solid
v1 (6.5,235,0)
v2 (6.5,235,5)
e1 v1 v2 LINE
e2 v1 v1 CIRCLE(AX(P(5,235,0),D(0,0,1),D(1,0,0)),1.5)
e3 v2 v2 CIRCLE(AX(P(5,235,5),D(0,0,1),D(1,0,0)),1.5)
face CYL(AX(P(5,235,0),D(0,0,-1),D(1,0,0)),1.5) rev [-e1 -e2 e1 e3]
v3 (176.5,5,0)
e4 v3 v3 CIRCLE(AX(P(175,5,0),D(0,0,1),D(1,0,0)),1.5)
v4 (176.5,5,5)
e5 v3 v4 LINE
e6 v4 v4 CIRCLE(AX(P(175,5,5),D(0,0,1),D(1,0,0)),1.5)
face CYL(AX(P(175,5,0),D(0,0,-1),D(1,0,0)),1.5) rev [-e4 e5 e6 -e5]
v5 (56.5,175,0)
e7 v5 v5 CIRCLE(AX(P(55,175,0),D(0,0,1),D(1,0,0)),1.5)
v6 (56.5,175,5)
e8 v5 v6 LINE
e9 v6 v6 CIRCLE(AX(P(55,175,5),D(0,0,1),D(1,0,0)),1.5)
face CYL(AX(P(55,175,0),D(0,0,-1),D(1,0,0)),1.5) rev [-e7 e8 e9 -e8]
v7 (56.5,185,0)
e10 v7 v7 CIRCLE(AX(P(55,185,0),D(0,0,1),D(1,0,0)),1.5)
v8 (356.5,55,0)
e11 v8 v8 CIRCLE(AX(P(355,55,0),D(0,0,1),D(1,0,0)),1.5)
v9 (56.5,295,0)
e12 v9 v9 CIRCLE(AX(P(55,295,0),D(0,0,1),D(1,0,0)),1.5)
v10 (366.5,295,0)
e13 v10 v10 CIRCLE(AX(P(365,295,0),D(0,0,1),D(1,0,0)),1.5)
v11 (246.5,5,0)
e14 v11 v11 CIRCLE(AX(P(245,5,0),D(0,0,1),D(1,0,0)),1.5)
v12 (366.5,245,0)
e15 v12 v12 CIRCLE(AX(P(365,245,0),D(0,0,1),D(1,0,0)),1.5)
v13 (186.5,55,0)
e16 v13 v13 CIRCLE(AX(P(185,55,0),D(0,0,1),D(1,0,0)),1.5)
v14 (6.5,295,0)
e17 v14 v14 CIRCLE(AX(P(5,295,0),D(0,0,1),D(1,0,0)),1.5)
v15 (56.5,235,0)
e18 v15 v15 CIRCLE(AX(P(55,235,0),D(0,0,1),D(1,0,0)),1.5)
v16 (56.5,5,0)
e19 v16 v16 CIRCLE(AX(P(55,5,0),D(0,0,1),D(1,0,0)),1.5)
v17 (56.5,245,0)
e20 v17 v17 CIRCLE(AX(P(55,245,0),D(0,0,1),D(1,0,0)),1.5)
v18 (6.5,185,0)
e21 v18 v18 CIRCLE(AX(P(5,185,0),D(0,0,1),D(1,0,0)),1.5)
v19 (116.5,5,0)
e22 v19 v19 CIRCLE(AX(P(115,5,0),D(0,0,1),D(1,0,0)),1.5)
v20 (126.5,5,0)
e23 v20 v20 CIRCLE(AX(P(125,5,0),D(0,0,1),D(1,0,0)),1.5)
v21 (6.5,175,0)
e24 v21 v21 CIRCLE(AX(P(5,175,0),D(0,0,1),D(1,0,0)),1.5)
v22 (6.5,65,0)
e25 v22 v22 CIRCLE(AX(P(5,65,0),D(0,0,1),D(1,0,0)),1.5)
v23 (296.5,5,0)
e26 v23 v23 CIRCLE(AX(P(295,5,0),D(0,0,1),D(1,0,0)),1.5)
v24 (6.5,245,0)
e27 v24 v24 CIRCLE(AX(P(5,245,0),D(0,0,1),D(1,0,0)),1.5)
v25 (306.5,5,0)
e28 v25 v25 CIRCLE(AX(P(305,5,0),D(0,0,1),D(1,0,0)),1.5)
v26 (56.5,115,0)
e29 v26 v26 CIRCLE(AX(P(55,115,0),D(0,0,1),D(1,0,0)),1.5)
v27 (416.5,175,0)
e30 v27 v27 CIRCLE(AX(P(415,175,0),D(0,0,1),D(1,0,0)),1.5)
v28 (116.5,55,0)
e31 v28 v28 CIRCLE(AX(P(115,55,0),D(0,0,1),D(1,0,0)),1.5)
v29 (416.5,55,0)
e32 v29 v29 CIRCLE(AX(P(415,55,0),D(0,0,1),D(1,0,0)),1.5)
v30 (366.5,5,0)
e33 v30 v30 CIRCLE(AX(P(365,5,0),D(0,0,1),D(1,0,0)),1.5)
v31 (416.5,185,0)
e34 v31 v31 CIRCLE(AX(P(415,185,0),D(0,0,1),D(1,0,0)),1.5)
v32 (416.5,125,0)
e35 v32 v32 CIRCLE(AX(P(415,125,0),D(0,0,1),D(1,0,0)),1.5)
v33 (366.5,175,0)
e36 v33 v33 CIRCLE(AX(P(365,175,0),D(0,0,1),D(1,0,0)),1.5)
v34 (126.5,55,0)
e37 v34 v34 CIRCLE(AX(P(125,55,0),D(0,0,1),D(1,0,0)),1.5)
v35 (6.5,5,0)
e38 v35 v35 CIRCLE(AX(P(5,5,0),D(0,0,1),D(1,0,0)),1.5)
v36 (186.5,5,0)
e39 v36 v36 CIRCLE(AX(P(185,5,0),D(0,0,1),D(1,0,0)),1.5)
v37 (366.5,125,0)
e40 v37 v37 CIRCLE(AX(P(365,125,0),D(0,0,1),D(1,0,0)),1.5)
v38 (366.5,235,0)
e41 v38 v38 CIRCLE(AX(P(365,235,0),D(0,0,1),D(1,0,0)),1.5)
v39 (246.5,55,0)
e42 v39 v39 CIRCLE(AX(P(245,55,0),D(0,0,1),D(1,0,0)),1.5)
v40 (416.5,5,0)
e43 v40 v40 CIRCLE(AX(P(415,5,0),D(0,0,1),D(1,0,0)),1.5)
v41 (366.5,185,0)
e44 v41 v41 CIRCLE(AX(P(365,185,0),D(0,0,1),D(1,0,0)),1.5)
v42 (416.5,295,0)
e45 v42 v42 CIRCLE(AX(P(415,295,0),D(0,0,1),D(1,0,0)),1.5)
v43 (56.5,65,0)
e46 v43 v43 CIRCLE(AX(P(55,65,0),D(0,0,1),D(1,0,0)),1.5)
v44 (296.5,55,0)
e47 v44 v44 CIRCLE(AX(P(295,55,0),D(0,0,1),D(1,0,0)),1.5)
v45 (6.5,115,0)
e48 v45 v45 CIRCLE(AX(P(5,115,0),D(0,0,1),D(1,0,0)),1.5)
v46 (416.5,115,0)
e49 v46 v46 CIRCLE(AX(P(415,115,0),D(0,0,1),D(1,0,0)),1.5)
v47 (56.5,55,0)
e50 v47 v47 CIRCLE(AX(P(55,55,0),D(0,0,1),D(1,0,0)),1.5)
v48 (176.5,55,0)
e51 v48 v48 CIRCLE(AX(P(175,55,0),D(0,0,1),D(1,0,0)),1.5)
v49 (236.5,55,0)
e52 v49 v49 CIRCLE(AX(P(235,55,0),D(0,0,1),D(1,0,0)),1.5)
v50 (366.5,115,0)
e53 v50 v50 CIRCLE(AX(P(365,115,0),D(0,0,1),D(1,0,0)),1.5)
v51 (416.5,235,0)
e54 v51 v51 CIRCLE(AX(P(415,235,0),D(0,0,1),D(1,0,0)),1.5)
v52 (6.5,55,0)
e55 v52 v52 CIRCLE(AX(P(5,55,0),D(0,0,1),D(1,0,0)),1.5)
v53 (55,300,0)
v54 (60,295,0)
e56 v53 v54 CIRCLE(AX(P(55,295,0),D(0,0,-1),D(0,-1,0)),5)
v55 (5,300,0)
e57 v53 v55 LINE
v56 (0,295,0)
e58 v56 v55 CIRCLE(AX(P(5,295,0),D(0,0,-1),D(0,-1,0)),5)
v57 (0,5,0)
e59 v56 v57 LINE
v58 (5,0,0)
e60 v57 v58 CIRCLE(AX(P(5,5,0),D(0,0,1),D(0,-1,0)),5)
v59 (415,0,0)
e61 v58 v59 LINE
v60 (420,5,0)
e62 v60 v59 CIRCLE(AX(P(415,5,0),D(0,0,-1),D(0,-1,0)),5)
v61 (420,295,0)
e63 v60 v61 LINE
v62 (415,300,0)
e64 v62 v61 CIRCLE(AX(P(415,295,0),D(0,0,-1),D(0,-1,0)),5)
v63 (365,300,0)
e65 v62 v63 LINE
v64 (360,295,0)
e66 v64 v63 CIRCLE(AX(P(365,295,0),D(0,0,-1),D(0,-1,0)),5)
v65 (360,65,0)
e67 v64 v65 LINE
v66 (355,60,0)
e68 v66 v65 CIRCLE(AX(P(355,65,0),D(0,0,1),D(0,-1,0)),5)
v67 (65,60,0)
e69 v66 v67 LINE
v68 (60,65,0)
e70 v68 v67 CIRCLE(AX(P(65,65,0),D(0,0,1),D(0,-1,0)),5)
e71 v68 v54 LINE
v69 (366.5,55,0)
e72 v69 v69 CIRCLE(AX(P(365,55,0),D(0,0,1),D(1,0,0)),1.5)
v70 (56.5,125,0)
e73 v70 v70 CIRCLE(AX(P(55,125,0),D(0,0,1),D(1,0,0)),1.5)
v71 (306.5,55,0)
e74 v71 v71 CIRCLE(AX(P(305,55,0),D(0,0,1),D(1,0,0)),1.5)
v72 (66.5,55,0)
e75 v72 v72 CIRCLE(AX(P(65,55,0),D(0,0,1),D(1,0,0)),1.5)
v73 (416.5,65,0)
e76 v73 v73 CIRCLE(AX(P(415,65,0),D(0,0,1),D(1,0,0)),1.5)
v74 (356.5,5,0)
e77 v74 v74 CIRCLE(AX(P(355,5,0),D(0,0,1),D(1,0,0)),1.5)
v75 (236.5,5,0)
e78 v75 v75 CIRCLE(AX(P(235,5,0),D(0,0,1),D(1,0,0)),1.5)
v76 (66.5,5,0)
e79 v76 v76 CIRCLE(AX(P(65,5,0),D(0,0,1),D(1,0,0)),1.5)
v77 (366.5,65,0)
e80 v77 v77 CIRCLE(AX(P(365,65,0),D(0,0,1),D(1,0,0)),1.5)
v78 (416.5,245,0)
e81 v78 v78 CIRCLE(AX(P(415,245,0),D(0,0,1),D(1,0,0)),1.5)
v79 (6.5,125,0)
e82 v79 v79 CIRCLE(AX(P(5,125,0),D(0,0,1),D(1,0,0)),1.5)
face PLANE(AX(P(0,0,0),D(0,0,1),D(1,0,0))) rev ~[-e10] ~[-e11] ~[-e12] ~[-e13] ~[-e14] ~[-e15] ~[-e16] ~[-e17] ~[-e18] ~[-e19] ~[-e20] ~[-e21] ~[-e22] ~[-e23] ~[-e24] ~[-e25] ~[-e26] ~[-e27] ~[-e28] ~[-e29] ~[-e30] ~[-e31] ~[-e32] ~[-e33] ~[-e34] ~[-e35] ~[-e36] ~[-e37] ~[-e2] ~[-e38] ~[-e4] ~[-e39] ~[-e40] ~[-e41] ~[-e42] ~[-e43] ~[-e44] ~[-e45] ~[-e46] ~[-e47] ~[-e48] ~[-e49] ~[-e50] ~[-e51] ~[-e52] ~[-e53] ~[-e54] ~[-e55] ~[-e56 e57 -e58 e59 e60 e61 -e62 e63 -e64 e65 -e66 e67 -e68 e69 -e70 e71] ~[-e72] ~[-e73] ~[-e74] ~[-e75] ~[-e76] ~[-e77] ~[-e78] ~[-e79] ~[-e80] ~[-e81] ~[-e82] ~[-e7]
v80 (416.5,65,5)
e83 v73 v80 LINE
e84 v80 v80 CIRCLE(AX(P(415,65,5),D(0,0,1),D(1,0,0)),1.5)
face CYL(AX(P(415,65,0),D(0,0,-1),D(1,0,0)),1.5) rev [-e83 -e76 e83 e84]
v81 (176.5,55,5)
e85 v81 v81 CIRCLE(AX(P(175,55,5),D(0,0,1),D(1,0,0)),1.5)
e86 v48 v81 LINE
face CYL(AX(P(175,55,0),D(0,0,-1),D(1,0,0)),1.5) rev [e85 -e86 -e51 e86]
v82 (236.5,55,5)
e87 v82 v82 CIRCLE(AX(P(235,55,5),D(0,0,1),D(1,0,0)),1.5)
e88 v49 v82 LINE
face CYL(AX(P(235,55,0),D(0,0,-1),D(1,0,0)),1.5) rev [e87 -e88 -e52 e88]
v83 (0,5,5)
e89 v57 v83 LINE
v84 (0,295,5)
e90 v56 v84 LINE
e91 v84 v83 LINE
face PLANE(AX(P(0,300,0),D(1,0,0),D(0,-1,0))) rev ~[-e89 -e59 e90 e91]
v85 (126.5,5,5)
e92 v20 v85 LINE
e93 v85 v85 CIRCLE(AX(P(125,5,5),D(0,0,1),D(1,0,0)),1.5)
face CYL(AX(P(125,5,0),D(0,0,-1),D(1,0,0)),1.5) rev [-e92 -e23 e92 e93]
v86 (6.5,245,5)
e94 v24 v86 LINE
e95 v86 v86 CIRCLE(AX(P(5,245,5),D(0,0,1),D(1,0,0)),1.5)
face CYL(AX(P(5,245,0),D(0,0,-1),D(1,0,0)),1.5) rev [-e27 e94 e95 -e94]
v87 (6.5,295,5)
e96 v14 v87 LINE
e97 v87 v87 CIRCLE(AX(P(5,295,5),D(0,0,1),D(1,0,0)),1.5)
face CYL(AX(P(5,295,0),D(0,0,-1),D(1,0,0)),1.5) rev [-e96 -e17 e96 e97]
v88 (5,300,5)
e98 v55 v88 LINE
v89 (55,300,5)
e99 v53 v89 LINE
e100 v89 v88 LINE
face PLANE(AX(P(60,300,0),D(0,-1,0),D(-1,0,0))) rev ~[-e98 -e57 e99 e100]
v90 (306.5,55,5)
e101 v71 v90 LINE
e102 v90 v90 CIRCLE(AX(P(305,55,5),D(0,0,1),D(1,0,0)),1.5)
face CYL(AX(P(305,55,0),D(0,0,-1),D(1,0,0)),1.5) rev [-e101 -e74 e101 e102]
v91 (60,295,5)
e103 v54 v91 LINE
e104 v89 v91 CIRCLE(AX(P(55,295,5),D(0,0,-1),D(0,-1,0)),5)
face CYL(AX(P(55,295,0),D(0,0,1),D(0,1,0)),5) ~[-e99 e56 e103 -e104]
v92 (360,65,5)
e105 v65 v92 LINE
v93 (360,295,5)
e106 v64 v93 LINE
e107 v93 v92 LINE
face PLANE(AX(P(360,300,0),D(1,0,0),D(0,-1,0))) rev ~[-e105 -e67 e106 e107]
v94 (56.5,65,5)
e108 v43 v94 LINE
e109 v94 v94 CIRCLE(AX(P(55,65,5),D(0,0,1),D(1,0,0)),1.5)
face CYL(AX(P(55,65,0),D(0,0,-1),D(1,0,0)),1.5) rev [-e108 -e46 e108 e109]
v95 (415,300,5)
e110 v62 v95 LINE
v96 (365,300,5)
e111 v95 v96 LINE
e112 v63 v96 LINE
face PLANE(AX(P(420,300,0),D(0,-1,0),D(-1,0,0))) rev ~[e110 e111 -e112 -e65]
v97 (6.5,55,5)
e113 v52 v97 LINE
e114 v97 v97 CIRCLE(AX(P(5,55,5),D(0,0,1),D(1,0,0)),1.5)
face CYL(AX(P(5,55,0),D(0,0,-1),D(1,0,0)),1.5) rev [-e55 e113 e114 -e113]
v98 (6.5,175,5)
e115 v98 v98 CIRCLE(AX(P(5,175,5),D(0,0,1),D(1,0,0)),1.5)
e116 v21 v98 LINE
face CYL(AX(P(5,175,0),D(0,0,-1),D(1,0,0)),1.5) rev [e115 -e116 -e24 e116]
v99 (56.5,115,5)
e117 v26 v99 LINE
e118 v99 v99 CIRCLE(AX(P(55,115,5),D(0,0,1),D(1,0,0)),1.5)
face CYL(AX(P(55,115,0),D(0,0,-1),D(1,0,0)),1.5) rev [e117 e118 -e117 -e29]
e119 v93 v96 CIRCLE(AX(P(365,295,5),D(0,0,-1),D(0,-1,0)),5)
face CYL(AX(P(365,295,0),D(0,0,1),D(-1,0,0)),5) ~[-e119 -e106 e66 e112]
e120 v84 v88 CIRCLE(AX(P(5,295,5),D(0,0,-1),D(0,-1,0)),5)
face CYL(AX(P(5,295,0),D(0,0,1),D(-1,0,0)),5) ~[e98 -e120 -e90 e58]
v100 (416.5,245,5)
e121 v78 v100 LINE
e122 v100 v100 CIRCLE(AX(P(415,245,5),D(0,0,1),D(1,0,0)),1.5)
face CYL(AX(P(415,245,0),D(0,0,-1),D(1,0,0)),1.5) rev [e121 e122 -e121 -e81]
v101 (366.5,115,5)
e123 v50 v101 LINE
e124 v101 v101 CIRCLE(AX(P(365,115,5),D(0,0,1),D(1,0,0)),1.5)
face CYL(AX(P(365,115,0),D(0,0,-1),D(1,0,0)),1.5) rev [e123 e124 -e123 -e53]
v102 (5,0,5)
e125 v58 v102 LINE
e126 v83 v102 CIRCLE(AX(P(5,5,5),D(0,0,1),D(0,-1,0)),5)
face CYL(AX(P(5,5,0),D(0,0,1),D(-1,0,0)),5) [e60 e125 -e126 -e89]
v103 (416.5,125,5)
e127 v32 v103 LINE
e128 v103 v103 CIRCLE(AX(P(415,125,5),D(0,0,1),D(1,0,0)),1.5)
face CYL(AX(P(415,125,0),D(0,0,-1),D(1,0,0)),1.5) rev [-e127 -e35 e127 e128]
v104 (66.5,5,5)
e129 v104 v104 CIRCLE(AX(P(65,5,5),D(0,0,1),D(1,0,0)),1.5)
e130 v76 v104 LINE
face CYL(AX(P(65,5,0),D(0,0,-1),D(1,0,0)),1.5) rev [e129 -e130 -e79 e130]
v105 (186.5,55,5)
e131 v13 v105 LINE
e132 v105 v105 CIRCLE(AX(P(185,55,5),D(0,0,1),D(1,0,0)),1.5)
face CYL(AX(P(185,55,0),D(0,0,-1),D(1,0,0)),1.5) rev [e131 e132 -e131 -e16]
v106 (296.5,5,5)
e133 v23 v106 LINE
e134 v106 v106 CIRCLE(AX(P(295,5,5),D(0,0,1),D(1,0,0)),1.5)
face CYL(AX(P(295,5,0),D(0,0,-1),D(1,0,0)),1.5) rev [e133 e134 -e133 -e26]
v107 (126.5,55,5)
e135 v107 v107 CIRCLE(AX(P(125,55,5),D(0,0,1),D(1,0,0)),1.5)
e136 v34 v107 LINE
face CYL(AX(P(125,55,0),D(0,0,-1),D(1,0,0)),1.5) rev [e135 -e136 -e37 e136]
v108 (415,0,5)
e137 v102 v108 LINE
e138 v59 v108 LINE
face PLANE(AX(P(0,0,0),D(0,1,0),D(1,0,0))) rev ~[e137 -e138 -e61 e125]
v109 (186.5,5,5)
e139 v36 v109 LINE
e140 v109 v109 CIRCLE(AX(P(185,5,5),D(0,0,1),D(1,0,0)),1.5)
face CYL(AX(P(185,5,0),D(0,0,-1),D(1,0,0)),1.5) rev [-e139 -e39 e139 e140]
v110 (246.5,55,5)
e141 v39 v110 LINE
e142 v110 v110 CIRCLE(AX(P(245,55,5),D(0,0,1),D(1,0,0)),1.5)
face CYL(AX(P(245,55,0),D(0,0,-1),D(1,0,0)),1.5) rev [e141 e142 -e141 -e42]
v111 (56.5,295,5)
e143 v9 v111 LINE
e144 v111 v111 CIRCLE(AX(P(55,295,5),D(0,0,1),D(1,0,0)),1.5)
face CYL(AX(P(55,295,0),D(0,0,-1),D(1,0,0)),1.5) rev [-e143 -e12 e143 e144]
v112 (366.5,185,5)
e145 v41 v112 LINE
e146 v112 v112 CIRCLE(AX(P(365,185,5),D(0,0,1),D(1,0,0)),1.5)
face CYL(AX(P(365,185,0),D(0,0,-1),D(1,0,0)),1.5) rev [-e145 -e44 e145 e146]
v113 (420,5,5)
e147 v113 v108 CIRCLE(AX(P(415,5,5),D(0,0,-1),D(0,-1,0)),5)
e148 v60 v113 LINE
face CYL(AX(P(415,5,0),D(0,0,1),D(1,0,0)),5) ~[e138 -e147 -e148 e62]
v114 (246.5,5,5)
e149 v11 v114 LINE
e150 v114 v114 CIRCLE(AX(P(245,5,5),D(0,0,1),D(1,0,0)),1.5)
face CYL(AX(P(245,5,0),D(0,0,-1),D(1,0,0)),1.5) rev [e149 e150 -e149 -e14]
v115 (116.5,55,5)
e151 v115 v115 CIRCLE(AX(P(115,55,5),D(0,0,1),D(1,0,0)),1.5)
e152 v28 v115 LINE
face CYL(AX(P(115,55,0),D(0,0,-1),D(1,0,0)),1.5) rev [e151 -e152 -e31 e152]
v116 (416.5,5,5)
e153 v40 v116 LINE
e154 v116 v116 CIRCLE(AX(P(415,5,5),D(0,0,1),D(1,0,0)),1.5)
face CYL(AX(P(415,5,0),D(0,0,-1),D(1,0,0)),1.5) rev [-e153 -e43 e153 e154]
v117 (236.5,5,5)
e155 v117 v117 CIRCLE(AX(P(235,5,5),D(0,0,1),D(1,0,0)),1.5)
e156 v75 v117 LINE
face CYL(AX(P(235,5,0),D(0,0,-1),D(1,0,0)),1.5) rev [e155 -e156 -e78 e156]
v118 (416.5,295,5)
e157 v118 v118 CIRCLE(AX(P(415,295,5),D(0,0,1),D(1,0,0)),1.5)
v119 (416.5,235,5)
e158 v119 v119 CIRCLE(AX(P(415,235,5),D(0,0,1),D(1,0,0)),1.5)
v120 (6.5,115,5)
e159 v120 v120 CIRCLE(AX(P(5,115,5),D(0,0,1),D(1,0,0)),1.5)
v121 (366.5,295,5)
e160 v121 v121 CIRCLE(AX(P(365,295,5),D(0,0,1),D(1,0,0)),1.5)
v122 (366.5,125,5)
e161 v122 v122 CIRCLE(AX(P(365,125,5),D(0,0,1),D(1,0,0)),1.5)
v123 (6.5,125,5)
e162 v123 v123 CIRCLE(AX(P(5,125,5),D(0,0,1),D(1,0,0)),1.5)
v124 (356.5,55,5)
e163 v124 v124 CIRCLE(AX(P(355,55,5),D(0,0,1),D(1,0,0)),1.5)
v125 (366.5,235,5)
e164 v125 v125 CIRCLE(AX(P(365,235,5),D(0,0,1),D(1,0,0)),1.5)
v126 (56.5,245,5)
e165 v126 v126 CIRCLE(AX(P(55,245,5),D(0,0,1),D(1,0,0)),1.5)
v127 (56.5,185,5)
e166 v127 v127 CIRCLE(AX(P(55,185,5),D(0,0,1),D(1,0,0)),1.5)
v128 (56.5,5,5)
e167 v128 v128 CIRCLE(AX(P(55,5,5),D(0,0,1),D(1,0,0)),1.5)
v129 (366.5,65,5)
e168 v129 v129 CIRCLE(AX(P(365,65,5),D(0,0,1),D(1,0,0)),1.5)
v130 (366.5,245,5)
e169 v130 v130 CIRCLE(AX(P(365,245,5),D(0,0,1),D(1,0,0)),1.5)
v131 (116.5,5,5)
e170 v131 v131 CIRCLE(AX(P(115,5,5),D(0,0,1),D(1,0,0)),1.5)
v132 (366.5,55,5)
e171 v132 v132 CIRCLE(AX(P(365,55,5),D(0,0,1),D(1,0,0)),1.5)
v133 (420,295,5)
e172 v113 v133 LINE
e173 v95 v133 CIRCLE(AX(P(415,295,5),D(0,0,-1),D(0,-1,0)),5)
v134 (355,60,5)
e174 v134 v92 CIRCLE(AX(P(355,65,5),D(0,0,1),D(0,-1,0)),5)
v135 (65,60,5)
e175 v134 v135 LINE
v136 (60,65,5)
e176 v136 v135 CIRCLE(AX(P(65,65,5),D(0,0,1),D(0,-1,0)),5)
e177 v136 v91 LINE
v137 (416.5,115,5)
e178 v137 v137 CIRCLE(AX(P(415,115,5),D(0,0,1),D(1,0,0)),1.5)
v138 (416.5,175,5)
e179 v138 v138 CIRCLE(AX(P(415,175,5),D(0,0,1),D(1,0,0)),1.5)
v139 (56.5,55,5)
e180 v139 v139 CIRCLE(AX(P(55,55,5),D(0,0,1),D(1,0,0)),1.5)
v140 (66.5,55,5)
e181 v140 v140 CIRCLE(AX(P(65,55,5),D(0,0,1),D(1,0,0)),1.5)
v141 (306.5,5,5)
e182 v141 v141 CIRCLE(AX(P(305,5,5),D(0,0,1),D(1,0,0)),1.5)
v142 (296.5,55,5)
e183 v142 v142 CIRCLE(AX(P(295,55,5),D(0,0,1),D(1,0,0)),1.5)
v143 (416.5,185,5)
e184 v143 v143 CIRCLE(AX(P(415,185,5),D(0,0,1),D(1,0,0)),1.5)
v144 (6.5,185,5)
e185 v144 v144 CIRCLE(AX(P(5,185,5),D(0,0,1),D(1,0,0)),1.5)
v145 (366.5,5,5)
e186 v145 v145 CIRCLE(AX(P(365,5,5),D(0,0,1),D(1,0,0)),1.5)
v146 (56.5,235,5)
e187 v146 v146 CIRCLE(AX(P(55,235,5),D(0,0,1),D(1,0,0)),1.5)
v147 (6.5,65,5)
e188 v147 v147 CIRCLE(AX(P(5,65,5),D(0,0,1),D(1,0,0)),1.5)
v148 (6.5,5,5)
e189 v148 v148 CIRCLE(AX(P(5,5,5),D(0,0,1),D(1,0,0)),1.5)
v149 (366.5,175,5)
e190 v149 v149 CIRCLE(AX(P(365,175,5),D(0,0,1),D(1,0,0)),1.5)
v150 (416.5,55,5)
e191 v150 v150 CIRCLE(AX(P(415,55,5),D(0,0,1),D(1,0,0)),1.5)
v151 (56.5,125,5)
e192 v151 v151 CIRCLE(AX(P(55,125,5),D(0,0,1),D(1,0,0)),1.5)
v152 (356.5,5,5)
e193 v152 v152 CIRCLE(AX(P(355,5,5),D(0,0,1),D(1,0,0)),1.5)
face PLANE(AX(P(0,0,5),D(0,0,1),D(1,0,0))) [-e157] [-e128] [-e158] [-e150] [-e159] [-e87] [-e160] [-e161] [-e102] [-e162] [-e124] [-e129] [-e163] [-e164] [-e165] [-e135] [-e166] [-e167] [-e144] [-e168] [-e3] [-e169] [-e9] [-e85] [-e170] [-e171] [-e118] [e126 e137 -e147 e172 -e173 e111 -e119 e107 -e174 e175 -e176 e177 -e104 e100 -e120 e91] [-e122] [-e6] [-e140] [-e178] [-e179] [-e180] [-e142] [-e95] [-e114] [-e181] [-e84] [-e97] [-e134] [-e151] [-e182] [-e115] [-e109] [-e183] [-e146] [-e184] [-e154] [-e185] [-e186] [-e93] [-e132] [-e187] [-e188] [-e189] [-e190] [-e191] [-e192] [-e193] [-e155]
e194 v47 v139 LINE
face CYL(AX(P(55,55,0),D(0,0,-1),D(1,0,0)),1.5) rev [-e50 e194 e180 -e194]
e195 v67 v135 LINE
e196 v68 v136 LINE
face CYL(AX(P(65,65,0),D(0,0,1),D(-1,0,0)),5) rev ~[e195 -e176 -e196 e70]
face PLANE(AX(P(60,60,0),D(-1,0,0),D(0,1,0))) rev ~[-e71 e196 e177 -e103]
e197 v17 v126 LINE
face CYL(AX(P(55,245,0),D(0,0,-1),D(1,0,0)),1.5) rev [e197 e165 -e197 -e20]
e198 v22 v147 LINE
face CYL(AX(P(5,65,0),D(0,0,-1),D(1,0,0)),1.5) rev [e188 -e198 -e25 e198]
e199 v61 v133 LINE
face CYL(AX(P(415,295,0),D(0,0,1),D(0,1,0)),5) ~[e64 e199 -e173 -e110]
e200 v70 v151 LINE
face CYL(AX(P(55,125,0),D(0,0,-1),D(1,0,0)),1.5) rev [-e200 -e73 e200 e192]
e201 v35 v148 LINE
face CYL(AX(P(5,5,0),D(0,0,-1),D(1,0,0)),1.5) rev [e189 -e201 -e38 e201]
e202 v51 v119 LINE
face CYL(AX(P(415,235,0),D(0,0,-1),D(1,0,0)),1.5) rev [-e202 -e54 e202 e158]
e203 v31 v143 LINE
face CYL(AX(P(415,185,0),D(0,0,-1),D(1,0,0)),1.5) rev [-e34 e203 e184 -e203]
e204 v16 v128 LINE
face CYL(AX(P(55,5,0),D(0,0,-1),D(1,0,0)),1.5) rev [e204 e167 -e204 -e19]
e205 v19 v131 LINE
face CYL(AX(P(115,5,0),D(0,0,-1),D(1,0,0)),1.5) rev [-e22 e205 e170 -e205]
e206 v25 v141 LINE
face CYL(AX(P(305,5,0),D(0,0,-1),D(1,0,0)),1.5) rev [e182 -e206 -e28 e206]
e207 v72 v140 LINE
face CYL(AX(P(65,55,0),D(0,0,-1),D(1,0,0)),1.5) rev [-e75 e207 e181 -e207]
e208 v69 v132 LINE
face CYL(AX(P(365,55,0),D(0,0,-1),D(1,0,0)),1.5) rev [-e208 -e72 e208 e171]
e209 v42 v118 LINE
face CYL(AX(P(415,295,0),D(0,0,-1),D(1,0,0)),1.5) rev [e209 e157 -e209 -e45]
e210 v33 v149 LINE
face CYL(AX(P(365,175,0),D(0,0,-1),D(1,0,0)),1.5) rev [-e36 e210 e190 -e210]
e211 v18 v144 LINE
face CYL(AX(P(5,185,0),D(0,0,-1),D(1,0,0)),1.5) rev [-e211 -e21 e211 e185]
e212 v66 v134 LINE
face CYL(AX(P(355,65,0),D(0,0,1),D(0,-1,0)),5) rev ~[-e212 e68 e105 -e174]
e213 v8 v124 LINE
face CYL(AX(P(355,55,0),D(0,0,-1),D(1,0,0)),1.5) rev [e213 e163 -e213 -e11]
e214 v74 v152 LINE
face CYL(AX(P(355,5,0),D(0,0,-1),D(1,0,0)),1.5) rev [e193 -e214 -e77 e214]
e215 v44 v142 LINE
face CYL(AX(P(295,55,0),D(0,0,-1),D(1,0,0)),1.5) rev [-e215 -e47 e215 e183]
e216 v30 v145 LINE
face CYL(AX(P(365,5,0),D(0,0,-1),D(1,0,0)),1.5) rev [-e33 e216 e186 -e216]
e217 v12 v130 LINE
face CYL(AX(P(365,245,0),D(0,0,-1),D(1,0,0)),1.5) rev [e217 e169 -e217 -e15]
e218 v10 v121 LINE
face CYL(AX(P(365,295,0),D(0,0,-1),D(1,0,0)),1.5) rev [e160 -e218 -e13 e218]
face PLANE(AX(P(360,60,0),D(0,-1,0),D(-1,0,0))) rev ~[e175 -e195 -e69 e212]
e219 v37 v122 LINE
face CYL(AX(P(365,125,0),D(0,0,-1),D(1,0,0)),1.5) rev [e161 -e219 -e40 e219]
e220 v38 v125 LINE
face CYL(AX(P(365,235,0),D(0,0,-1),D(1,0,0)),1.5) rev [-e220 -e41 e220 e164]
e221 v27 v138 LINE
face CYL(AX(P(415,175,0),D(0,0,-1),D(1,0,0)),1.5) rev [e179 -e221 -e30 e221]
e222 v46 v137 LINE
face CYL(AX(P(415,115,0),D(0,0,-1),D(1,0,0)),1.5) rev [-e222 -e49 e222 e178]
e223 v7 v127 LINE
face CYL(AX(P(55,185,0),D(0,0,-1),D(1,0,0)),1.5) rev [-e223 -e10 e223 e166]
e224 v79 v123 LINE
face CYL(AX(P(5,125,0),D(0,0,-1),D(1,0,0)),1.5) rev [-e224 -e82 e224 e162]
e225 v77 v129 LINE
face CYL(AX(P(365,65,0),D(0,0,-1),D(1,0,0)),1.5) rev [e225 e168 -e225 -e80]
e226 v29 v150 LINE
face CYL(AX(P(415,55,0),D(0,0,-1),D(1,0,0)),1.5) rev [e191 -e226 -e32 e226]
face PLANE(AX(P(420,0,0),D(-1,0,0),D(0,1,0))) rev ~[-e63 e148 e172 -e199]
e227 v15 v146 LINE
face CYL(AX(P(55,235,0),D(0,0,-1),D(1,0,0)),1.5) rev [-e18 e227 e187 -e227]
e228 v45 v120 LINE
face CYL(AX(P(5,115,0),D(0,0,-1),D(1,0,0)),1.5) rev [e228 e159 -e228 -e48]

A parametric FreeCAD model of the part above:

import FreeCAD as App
import Part
import Sketcher
from FreeCAD import Vector


def edges_at(feature, points):
    """Names of the edges that pass closest to the given points."""
    edges = feature.Shape.Edges
    near = lambda p: min(range(len(edges)), key=lambda i: edges[i].distToShape(Part.Vertex(*p))[0])
    return sorted({f"Edge{near(p) + 1}" for p in points})


def add_polygon(sketch, points):
    """Adds a closed chain of lines whose ends are joined by coincident constraints."""
    first, n = sketch.GeometryCount, len(points)
    for a, b in zip(points, points[1:] + points[:1]):
        sketch.addGeometry(Part.LineSegment(App.Vector(*a, 0), App.Vector(*b, 0)), False)
    for i in range(n):
        sketch.addConstraint(Sketcher.Constraint("Coincident", first + i, 2, first + (i + 1) % n, 1))

doc = App.newDocument("Part")
body = doc.addObject("PartDesign::Body", "Body")

# Sketch on XY plane
sketch1 = doc.addObject("Sketcher::SketchObject", "Sketch")
body.addObject(sketch1)
sketch1.AttachmentSupport = (doc.XY_Plane, [""])
sketch1.MapMode = "FlatFace"
add_polygon(sketch1, [(0, 300), (0, 0), (420, 0), (420, 300), (360, 300), (360, 60), (60, 60), (60, 300)])  # lines 0-7
sketch1.addGeometry(Part.Circle(Vector(5, 5, 0), Vector(0, 0, 1), 1.5), False)  # 8
sketch1.addGeometry(Part.Circle(Vector(55, 5, 0), Vector(0, 0, 1), 1.5), False)  # 9
sketch1.addGeometry(Part.Circle(Vector(65, 5, 0), Vector(0, 0, 1), 1.5), False)  # 10
sketch1.addGeometry(Part.Circle(Vector(5, 55, 0), Vector(0, 0, 1), 1.5), False)  # 11
sketch1.addGeometry(Part.Circle(Vector(5, 65, 0), Vector(0, 0, 1), 1.5), False)  # 12
sketch1.addGeometry(Part.Circle(Vector(55, 55, 0), Vector(0, 0, 1), 1.5), False)  # 13
sketch1.addGeometry(Part.Circle(Vector(65, 55, 0), Vector(0, 0, 1), 1.5), False)  # 14
sketch1.addGeometry(Part.Circle(Vector(55, 65, 0), Vector(0, 0, 1), 1.5), False)  # 15
sketch1.addGeometry(Part.Circle(Vector(115, 5, 0), Vector(0, 0, 1), 1.5), False)  # 16
sketch1.addGeometry(Part.Circle(Vector(125, 5, 0), Vector(0, 0, 1), 1.5), False)  # 17
sketch1.addGeometry(Part.Circle(Vector(175, 5, 0), Vector(0, 0, 1), 1.5), False)  # 18
sketch1.addGeometry(Part.Circle(Vector(185, 5, 0), Vector(0, 0, 1), 1.5), False)  # 19
sketch1.addGeometry(Part.Circle(Vector(115, 55, 0), Vector(0, 0, 1), 1.5), False)  # 20
sketch1.addGeometry(Part.Circle(Vector(125, 55, 0), Vector(0, 0, 1), 1.5), False)  # 21
sketch1.addGeometry(Part.Circle(Vector(175, 55, 0), Vector(0, 0, 1), 1.5), False)  # 22
sketch1.addGeometry(Part.Circle(Vector(185, 55, 0), Vector(0, 0, 1), 1.5), False)  # 23
sketch1.addGeometry(Part.Circle(Vector(5, 115, 0), Vector(0, 0, 1), 1.5), False)  # 24
sketch1.addGeometry(Part.Circle(Vector(5, 125, 0), Vector(0, 0, 1), 1.5), False)  # 25
sketch1.addGeometry(Part.Circle(Vector(55, 115, 0), Vector(0, 0, 1), 1.5), False)  # 26
sketch1.addGeometry(Part.Circle(Vector(55, 125, 0), Vector(0, 0, 1), 1.5), False)  # 27
sketch1.addGeometry(Part.Circle(Vector(235, 5, 0), Vector(0, 0, 1), 1.5), False)  # 28
sketch1.addGeometry(Part.Circle(Vector(245, 5, 0), Vector(0, 0, 1), 1.5), False)  # 29
sketch1.addGeometry(Part.Circle(Vector(295, 5, 0), Vector(0, 0, 1), 1.5), False)  # 30
sketch1.addGeometry(Part.Circle(Vector(305, 5, 0), Vector(0, 0, 1), 1.5), False)  # 31
sketch1.addGeometry(Part.Circle(Vector(235, 55, 0), Vector(0, 0, 1), 1.5), False)  # 32
sketch1.addGeometry(Part.Circle(Vector(245, 55, 0), Vector(0, 0, 1), 1.5), False)  # 33
sketch1.addGeometry(Part.Circle(Vector(295, 55, 0), Vector(0, 0, 1), 1.5), False)  # 34
sketch1.addGeometry(Part.Circle(Vector(305, 55, 0), Vector(0, 0, 1), 1.5), False)  # 35
sketch1.addGeometry(Part.Circle(Vector(355, 5, 0), Vector(0, 0, 1), 1.5), False)  # 36
sketch1.addGeometry(Part.Circle(Vector(365, 5, 0), Vector(0, 0, 1), 1.5), False)  # 37
sketch1.addGeometry(Part.Circle(Vector(415, 5, 0), Vector(0, 0, 1), 1.5), False)  # 38
sketch1.addGeometry(Part.Circle(Vector(355, 55, 0), Vector(0, 0, 1), 1.5), False)  # 39
sketch1.addGeometry(Part.Circle(Vector(365, 55, 0), Vector(0, 0, 1), 1.5), False)  # 40
sketch1.addGeometry(Part.Circle(Vector(365, 65, 0), Vector(0, 0, 1), 1.5), False)  # 41
sketch1.addGeometry(Part.Circle(Vector(415, 55, 0), Vector(0, 0, 1), 1.5), False)  # 42
sketch1.addGeometry(Part.Circle(Vector(415, 65, 0), Vector(0, 0, 1), 1.5), False)  # 43
sketch1.addGeometry(Part.Circle(Vector(365, 115, 0), Vector(0, 0, 1), 1.5), False)  # 44
sketch1.addGeometry(Part.Circle(Vector(365, 125, 0), Vector(0, 0, 1), 1.5), False)  # 45
sketch1.addGeometry(Part.Circle(Vector(415, 115, 0), Vector(0, 0, 1), 1.5), False)  # 46
sketch1.addGeometry(Part.Circle(Vector(415, 125, 0), Vector(0, 0, 1), 1.5), False)  # 47
sketch1.addGeometry(Part.Circle(Vector(5, 175, 0), Vector(0, 0, 1), 1.5), False)  # 48
sketch1.addGeometry(Part.Circle(Vector(5, 185, 0), Vector(0, 0, 1), 1.5), False)  # 49
sketch1.addGeometry(Part.Circle(Vector(55, 175, 0), Vector(0, 0, 1), 1.5), False)  # 50
sketch1.addGeometry(Part.Circle(Vector(55, 185, 0), Vector(0, 0, 1), 1.5), False)  # 51
sketch1.addGeometry(Part.Circle(Vector(5, 235, 0), Vector(0, 0, 1), 1.5), False)  # 52
sketch1.addGeometry(Part.Circle(Vector(5, 245, 0), Vector(0, 0, 1), 1.5), False)  # 53
sketch1.addGeometry(Part.Circle(Vector(55, 235, 0), Vector(0, 0, 1), 1.5), False)  # 54
sketch1.addGeometry(Part.Circle(Vector(55, 245, 0), Vector(0, 0, 1), 1.5), False)  # 55
sketch1.addGeometry(Part.Circle(Vector(5, 295, 0), Vector(0, 0, 1), 1.5), False)  # 56
sketch1.addGeometry(Part.Circle(Vector(55, 295, 0), Vector(0, 0, 1), 1.5), False)  # 57
sketch1.addGeometry(Part.Circle(Vector(365, 175, 0), Vector(0, 0, 1), 1.5), False)  # 58
sketch1.addGeometry(Part.Circle(Vector(365, 185, 0), Vector(0, 0, 1), 1.5), False)  # 59
sketch1.addGeometry(Part.Circle(Vector(415, 175, 0), Vector(0, 0, 1), 1.5), False)  # 60
sketch1.addGeometry(Part.Circle(Vector(415, 185, 0), Vector(0, 0, 1), 1.5), False)  # 61
sketch1.addGeometry(Part.Circle(Vector(365, 235, 0), Vector(0, 0, 1), 1.5), False)  # 62
sketch1.addGeometry(Part.Circle(Vector(365, 245, 0), Vector(0, 0, 1), 1.5), False)  # 63
sketch1.addGeometry(Part.Circle(Vector(415, 235, 0), Vector(0, 0, 1), 1.5), False)  # 64
sketch1.addGeometry(Part.Circle(Vector(415, 245, 0), Vector(0, 0, 1), 1.5), False)  # 65
sketch1.addGeometry(Part.Circle(Vector(365, 295, 0), Vector(0, 0, 1), 1.5), False)  # 66
sketch1.addGeometry(Part.Circle(Vector(415, 295, 0), Vector(0, 0, 1), 1.5), False)  # 67
sketch1.addConstraint([
    Sketcher.Constraint("Vertical", 0),
    Sketcher.Constraint("Horizontal", 1),
    Sketcher.Constraint("Vertical", 2),
    Sketcher.Constraint("Horizontal", 3),
    Sketcher.Constraint("Vertical", 4),
    Sketcher.Constraint("Horizontal", 5),
    Sketcher.Constraint("Vertical", 6),
    Sketcher.Constraint("Horizontal", 7),
    Sketcher.Constraint("Coincident", 0, 2, -1, 1),
    Sketcher.Constraint("Equal", 8, 9),
    Sketcher.Constraint("Equal", 9, 10),
    Sketcher.Constraint("Equal", 10, 11),
    Sketcher.Constraint("Equal", 11, 12),
    Sketcher.Constraint("Equal", 12, 13),
    Sketcher.Constraint("Equal", 13, 14),
    Sketcher.Constraint("Equal", 14, 15),
    Sketcher.Constraint("Equal", 15, 16),
    Sketcher.Constraint("Equal", 16, 17),
    Sketcher.Constraint("Equal", 17, 18),
    Sketcher.Constraint("Equal", 18, 19),
    Sketcher.Constraint("Equal", 19, 20),
    Sketcher.Constraint("Equal", 20, 21),
    Sketcher.Constraint("Equal", 21, 22),
    Sketcher.Constraint("Equal", 22, 23),
    Sketcher.Constraint("Equal", 23, 24),
    Sketcher.Constraint("Equal", 24, 25),
    Sketcher.Constraint("Equal", 25, 26),
    Sketcher.Constraint("Equal", 26, 27),
    Sketcher.Constraint("Equal", 27, 28),
    Sketcher.Constraint("Equal", 28, 29),
    Sketcher.Constraint("Equal", 29, 30),
    Sketcher.Constraint("Equal", 30, 31),
    Sketcher.Constraint("Equal", 31, 32),
    Sketcher.Constraint("Equal", 32, 33),
    Sketcher.Constraint("Equal", 33, 34),
    Sketcher.Constraint("Equal", 34, 35),
    Sketcher.Constraint("Equal", 35, 36),
    Sketcher.Constraint("Equal", 36, 37),
    Sketcher.Constraint("Equal", 37, 38),
    Sketcher.Constraint("Equal", 38, 39),
    Sketcher.Constraint("Equal", 39, 40),
    Sketcher.Constraint("Equal", 40, 41),
    Sketcher.Constraint("Equal", 41, 42),
    Sketcher.Constraint("Equal", 42, 43),
    Sketcher.Constraint("Equal", 43, 44),
    Sketcher.Constraint("Equal", 44, 45),
    Sketcher.Constraint("Equal", 45, 46),
    Sketcher.Constraint("Equal", 46, 47),
    Sketcher.Constraint("Equal", 47, 48),
    Sketcher.Constraint("Equal", 48, 49),
    Sketcher.Constraint("Equal", 49, 50),
    Sketcher.Constraint("Equal", 50, 51),
    Sketcher.Constraint("Equal", 51, 52),
    Sketcher.Constraint("Equal", 52, 53),
    Sketcher.Constraint("Equal", 53, 54),
    Sketcher.Constraint("Equal", 54, 55),
    Sketcher.Constraint("Equal", 55, 56),
    Sketcher.Constraint("Equal", 56, 57),
    Sketcher.Constraint("Equal", 57, 58),
    Sketcher.Constraint("Equal", 58, 59),
    Sketcher.Constraint("Equal", 59, 60),
    Sketcher.Constraint("Equal", 60, 61),
    Sketcher.Constraint("Equal", 61, 62),
    Sketcher.Constraint("Equal", 62, 63),
    Sketcher.Constraint("Equal", 63, 64),
    Sketcher.Constraint("Equal", 64, 65),
    Sketcher.Constraint("Equal", 65, 66),
    Sketcher.Constraint("Equal", 66, 67),
    Sketcher.Constraint("Horizontal", 8, 3, 9, 3),
    Sketcher.Constraint("Horizontal", 9, 3, 10, 3),
    Sketcher.Constraint("Horizontal", 11, 3, 13, 3),
    Sketcher.Constraint("Horizontal", 13, 3, 14, 3),
    Sketcher.Constraint("Horizontal", 12, 3, 15, 3),
    Sketcher.Constraint("Horizontal", 10, 3, 16, 3),
    Sketcher.Constraint("Horizontal", 16, 3, 17, 3),
    Sketcher.Constraint("Horizontal", 17, 3, 18, 3),
    Sketcher.Constraint("Horizontal", 18, 3, 19, 3),
    Sketcher.Constraint("Horizontal", 14, 3, 20, 3),
    Sketcher.Constraint("Horizontal", 20, 3, 21, 3),
    Sketcher.Constraint("Horizontal", 21, 3, 22, 3),
    Sketcher.Constraint("Horizontal", 22, 3, 23, 3),
    Sketcher.Constraint("Horizontal", 24, 3, 26, 3),
    Sketcher.Constraint("Horizontal", 25, 3, 27, 3),
    Sketcher.Constraint("Horizontal", 19, 3, 28, 3),
    Sketcher.Constraint("Horizontal", 28, 3, 29, 3),
    Sketcher.Constraint("Horizontal", 29, 3, 30, 3),
    Sketcher.Constraint("Horizontal", 30, 3, 31, 3),
    Sketcher.Constraint("Horizontal", 23, 3, 32, 3),
    Sketcher.Constraint("Horizontal", 32, 3, 33, 3),
    Sketcher.Constraint("Horizontal", 33, 3, 34, 3),
    Sketcher.Constraint("Horizontal", 34, 3, 35, 3),
    Sketcher.Constraint("Horizontal", 31, 3, 36, 3),
    Sketcher.Constraint("Horizontal", 36, 3, 37, 3),
    Sketcher.Constraint("Horizontal", 37, 3, 38, 3),
    Sketcher.Constraint("Horizontal", 35, 3, 39, 3),
    Sketcher.Constraint("Horizontal", 39, 3, 40, 3),
    Sketcher.Constraint("Horizontal", 15, 3, 41, 3),
    Sketcher.Constraint("Horizontal", 40, 3, 42, 3),
    Sketcher.Constraint("Horizontal", 41, 3, 43, 3),
    Sketcher.Constraint("Horizontal", 26, 3, 44, 3),
    Sketcher.Constraint("Horizontal", 27, 3, 45, 3),
    Sketcher.Constraint("Horizontal", 44, 3, 46, 3),
    Sketcher.Constraint("Horizontal", 45, 3, 47, 3),
    Sketcher.Constraint("Horizontal", 48, 3, 50, 3),
    Sketcher.Constraint("Horizontal", 49, 3, 51, 3),
    Sketcher.Constraint("Horizontal", 52, 3, 54, 3),
    Sketcher.Constraint("Horizontal", 53, 3, 55, 3),
    Sketcher.Constraint("Horizontal", 56, 3, 57, 3),
    Sketcher.Constraint("Horizontal", 50, 3, 58, 3),
    Sketcher.Constraint("Horizontal", 51, 3, 59, 3),
    Sketcher.Constraint("Horizontal", 58, 3, 60, 3),
    Sketcher.Constraint("Horizontal", 59, 3, 61, 3),
    Sketcher.Constraint("Horizontal", 54, 3, 62, 3),
    Sketcher.Constraint("Horizontal", 55, 3, 63, 3),
    Sketcher.Constraint("Horizontal", 62, 3, 64, 3),
    Sketcher.Constraint("Horizontal", 63, 3, 65, 3),
    Sketcher.Constraint("Horizontal", 57, 3, 66, 3),
    Sketcher.Constraint("Horizontal", 66, 3, 67, 3),
    Sketcher.Constraint("Horizontal", 3, 2, 6, 2),
    Sketcher.Constraint("Vertical", 8, 3, 11, 3),
    Sketcher.Constraint("Vertical", 11, 3, 12, 3),
    Sketcher.Constraint("Vertical", 9, 3, 13, 3),
    Sketcher.Constraint("Vertical", 10, 3, 14, 3),
    Sketcher.Constraint("Vertical", 13, 3, 15, 3),
    Sketcher.Constraint("Vertical", 16, 3, 20, 3),
    Sketcher.Constraint("Vertical", 17, 3, 21, 3),
    Sketcher.Constraint("Vertical", 18, 3, 22, 3),
    Sketcher.Constraint("Vertical", 19, 3, 23, 3),
    Sketcher.Constraint("Vertical", 12, 3, 24, 3),
    Sketcher.Constraint("Vertical", 24, 3, 25, 3),
    Sketcher.Constraint("Vertical", 15, 3, 26, 3),
    Sketcher.Constraint("Vertical", 26, 3, 27, 3),
    Sketcher.Constraint("Vertical", 28, 3, 32, 3),
    Sketcher.Constraint("Vertical", 29, 3, 33, 3),
    Sketcher.Constraint("Vertical", 30, 3, 34, 3),
    Sketcher.Constraint("Vertical", 31, 3, 35, 3),
    Sketcher.Constraint("Vertical", 36, 3, 39, 3),
    Sketcher.Constraint("Vertical", 37, 3, 40, 3),
    Sketcher.Constraint("Vertical", 40, 3, 41, 3),
    Sketcher.Constraint("Vertical", 38, 3, 42, 3),
    Sketcher.Constraint("Vertical", 42, 3, 43, 3),
    Sketcher.Constraint("Vertical", 41, 3, 44, 3),
    Sketcher.Constraint("Vertical", 44, 3, 45, 3),
    Sketcher.Constraint("Vertical", 43, 3, 46, 3),
    Sketcher.Constraint("Vertical", 46, 3, 47, 3),
    Sketcher.Constraint("Vertical", 25, 3, 48, 3),
    Sketcher.Constraint("Vertical", 48, 3, 49, 3),
    Sketcher.Constraint("Vertical", 27, 3, 50, 3),
    Sketcher.Constraint("Vertical", 50, 3, 51, 3),
    Sketcher.Constraint("Vertical", 49, 3, 52, 3),
    Sketcher.Constraint("Vertical", 52, 3, 53, 3),
    Sketcher.Constraint("Vertical", 51, 3, 54, 3),
    Sketcher.Constraint("Vertical", 54, 3, 55, 3),
    Sketcher.Constraint("Vertical", 53, 3, 56, 3),
    Sketcher.Constraint("Vertical", 55, 3, 57, 3),
    Sketcher.Constraint("Vertical", 45, 3, 58, 3),
    Sketcher.Constraint("Vertical", 58, 3, 59, 3),
    Sketcher.Constraint("Vertical", 47, 3, 60, 3),
    Sketcher.Constraint("Vertical", 60, 3, 61, 3),
    Sketcher.Constraint("Vertical", 59, 3, 62, 3),
    Sketcher.Constraint("Vertical", 62, 3, 63, 3),
    Sketcher.Constraint("Vertical", 61, 3, 64, 3),
    Sketcher.Constraint("Vertical", 64, 3, 65, 3),
    Sketcher.Constraint("Vertical", 63, 3, 66, 3),
    Sketcher.Constraint("Vertical", 65, 3, 67, 3),
    Sketcher.Constraint("Equal", 3, 7),
    Sketcher.Constraint("Equal", 5, 0),
    Sketcher.Constraint("Diameter", 8, 3.0),
    Sketcher.Constraint("DistanceX", 1, 1, 1, 2, 420.0),
    Sketcher.Constraint("DistanceX", 3, 2, 3, 1, 60.0),
    Sketcher.Constraint("DistanceY", 4, 2, 4, 1, 240.0),
    Sketcher.Constraint("DistanceX", -1, 1, 8, 3, 5.0),
    Sketcher.Constraint("DistanceY", -1, 1, 8, 3, 5.0),
    Sketcher.Constraint("DistanceX", -1, 1, 9, 3, 55.0),
    Sketcher.Constraint("DistanceX", -1, 1, 10, 3, 65.0),
    Sketcher.Constraint("DistanceY", -1, 1, 11, 3, 55.0),
    Sketcher.Constraint("DistanceY", -1, 1, 12, 3, 65.0),
    Sketcher.Constraint("DistanceX", -1, 1, 16, 3, 115.0),
    Sketcher.Constraint("DistanceX", -1, 1, 17, 3, 125.0),
    Sketcher.Constraint("DistanceX", -1, 1, 18, 3, 175.0),
    Sketcher.Constraint("DistanceX", -1, 1, 19, 3, 185.0),
    Sketcher.Constraint("DistanceY", -1, 1, 24, 3, 115.0),
    Sketcher.Constraint("DistanceY", -1, 1, 25, 3, 125.0),
    Sketcher.Constraint("DistanceX", -1, 1, 28, 3, 235.0),
    Sketcher.Constraint("DistanceX", -1, 1, 29, 3, 245.0),
    Sketcher.Constraint("DistanceX", -1, 1, 30, 3, 295.0),
    Sketcher.Constraint("DistanceX", -1, 1, 31, 3, 305.0),
    Sketcher.Constraint("DistanceX", -1, 1, 36, 3, 355.0),
    Sketcher.Constraint("DistanceX", -1, 1, 37, 3, 365.0),
    Sketcher.Constraint("DistanceX", -1, 1, 38, 3, 415.0),
    Sketcher.Constraint("DistanceY", -1, 1, 48, 3, 175.0),
    Sketcher.Constraint("DistanceY", -1, 1, 49, 3, 185.0),
    Sketcher.Constraint("DistanceY", -1, 1, 52, 3, 235.0),
    Sketcher.Constraint("DistanceY", -1, 1, 53, 3, 245.0),
    Sketcher.Constraint("DistanceY", -1, 1, 56, 3, 295.0),
])
pad1 = doc.addObject("PartDesign::Pad", "Pad")
body.addObject(pad1)
pad1.Profile = sketch1
pad1.Length = 5
doc.recompute()

fillet = doc.addObject("PartDesign::Fillet", "Fillet")
body.addObject(fillet)
fillet.Base = (pad1, edges_at(pad1, [
    (60, 60, 2.5),
    (360, 60, 2.5),
    (420, 0, 2.5),
    (360, 300, 2.5),
    (420, 300, 2.5),
    (0, 0, 2.5),
    (0, 300, 2.5),
    (60, 300, 2.5),
]))
fillet.Radius = 5

doc.recompute()
